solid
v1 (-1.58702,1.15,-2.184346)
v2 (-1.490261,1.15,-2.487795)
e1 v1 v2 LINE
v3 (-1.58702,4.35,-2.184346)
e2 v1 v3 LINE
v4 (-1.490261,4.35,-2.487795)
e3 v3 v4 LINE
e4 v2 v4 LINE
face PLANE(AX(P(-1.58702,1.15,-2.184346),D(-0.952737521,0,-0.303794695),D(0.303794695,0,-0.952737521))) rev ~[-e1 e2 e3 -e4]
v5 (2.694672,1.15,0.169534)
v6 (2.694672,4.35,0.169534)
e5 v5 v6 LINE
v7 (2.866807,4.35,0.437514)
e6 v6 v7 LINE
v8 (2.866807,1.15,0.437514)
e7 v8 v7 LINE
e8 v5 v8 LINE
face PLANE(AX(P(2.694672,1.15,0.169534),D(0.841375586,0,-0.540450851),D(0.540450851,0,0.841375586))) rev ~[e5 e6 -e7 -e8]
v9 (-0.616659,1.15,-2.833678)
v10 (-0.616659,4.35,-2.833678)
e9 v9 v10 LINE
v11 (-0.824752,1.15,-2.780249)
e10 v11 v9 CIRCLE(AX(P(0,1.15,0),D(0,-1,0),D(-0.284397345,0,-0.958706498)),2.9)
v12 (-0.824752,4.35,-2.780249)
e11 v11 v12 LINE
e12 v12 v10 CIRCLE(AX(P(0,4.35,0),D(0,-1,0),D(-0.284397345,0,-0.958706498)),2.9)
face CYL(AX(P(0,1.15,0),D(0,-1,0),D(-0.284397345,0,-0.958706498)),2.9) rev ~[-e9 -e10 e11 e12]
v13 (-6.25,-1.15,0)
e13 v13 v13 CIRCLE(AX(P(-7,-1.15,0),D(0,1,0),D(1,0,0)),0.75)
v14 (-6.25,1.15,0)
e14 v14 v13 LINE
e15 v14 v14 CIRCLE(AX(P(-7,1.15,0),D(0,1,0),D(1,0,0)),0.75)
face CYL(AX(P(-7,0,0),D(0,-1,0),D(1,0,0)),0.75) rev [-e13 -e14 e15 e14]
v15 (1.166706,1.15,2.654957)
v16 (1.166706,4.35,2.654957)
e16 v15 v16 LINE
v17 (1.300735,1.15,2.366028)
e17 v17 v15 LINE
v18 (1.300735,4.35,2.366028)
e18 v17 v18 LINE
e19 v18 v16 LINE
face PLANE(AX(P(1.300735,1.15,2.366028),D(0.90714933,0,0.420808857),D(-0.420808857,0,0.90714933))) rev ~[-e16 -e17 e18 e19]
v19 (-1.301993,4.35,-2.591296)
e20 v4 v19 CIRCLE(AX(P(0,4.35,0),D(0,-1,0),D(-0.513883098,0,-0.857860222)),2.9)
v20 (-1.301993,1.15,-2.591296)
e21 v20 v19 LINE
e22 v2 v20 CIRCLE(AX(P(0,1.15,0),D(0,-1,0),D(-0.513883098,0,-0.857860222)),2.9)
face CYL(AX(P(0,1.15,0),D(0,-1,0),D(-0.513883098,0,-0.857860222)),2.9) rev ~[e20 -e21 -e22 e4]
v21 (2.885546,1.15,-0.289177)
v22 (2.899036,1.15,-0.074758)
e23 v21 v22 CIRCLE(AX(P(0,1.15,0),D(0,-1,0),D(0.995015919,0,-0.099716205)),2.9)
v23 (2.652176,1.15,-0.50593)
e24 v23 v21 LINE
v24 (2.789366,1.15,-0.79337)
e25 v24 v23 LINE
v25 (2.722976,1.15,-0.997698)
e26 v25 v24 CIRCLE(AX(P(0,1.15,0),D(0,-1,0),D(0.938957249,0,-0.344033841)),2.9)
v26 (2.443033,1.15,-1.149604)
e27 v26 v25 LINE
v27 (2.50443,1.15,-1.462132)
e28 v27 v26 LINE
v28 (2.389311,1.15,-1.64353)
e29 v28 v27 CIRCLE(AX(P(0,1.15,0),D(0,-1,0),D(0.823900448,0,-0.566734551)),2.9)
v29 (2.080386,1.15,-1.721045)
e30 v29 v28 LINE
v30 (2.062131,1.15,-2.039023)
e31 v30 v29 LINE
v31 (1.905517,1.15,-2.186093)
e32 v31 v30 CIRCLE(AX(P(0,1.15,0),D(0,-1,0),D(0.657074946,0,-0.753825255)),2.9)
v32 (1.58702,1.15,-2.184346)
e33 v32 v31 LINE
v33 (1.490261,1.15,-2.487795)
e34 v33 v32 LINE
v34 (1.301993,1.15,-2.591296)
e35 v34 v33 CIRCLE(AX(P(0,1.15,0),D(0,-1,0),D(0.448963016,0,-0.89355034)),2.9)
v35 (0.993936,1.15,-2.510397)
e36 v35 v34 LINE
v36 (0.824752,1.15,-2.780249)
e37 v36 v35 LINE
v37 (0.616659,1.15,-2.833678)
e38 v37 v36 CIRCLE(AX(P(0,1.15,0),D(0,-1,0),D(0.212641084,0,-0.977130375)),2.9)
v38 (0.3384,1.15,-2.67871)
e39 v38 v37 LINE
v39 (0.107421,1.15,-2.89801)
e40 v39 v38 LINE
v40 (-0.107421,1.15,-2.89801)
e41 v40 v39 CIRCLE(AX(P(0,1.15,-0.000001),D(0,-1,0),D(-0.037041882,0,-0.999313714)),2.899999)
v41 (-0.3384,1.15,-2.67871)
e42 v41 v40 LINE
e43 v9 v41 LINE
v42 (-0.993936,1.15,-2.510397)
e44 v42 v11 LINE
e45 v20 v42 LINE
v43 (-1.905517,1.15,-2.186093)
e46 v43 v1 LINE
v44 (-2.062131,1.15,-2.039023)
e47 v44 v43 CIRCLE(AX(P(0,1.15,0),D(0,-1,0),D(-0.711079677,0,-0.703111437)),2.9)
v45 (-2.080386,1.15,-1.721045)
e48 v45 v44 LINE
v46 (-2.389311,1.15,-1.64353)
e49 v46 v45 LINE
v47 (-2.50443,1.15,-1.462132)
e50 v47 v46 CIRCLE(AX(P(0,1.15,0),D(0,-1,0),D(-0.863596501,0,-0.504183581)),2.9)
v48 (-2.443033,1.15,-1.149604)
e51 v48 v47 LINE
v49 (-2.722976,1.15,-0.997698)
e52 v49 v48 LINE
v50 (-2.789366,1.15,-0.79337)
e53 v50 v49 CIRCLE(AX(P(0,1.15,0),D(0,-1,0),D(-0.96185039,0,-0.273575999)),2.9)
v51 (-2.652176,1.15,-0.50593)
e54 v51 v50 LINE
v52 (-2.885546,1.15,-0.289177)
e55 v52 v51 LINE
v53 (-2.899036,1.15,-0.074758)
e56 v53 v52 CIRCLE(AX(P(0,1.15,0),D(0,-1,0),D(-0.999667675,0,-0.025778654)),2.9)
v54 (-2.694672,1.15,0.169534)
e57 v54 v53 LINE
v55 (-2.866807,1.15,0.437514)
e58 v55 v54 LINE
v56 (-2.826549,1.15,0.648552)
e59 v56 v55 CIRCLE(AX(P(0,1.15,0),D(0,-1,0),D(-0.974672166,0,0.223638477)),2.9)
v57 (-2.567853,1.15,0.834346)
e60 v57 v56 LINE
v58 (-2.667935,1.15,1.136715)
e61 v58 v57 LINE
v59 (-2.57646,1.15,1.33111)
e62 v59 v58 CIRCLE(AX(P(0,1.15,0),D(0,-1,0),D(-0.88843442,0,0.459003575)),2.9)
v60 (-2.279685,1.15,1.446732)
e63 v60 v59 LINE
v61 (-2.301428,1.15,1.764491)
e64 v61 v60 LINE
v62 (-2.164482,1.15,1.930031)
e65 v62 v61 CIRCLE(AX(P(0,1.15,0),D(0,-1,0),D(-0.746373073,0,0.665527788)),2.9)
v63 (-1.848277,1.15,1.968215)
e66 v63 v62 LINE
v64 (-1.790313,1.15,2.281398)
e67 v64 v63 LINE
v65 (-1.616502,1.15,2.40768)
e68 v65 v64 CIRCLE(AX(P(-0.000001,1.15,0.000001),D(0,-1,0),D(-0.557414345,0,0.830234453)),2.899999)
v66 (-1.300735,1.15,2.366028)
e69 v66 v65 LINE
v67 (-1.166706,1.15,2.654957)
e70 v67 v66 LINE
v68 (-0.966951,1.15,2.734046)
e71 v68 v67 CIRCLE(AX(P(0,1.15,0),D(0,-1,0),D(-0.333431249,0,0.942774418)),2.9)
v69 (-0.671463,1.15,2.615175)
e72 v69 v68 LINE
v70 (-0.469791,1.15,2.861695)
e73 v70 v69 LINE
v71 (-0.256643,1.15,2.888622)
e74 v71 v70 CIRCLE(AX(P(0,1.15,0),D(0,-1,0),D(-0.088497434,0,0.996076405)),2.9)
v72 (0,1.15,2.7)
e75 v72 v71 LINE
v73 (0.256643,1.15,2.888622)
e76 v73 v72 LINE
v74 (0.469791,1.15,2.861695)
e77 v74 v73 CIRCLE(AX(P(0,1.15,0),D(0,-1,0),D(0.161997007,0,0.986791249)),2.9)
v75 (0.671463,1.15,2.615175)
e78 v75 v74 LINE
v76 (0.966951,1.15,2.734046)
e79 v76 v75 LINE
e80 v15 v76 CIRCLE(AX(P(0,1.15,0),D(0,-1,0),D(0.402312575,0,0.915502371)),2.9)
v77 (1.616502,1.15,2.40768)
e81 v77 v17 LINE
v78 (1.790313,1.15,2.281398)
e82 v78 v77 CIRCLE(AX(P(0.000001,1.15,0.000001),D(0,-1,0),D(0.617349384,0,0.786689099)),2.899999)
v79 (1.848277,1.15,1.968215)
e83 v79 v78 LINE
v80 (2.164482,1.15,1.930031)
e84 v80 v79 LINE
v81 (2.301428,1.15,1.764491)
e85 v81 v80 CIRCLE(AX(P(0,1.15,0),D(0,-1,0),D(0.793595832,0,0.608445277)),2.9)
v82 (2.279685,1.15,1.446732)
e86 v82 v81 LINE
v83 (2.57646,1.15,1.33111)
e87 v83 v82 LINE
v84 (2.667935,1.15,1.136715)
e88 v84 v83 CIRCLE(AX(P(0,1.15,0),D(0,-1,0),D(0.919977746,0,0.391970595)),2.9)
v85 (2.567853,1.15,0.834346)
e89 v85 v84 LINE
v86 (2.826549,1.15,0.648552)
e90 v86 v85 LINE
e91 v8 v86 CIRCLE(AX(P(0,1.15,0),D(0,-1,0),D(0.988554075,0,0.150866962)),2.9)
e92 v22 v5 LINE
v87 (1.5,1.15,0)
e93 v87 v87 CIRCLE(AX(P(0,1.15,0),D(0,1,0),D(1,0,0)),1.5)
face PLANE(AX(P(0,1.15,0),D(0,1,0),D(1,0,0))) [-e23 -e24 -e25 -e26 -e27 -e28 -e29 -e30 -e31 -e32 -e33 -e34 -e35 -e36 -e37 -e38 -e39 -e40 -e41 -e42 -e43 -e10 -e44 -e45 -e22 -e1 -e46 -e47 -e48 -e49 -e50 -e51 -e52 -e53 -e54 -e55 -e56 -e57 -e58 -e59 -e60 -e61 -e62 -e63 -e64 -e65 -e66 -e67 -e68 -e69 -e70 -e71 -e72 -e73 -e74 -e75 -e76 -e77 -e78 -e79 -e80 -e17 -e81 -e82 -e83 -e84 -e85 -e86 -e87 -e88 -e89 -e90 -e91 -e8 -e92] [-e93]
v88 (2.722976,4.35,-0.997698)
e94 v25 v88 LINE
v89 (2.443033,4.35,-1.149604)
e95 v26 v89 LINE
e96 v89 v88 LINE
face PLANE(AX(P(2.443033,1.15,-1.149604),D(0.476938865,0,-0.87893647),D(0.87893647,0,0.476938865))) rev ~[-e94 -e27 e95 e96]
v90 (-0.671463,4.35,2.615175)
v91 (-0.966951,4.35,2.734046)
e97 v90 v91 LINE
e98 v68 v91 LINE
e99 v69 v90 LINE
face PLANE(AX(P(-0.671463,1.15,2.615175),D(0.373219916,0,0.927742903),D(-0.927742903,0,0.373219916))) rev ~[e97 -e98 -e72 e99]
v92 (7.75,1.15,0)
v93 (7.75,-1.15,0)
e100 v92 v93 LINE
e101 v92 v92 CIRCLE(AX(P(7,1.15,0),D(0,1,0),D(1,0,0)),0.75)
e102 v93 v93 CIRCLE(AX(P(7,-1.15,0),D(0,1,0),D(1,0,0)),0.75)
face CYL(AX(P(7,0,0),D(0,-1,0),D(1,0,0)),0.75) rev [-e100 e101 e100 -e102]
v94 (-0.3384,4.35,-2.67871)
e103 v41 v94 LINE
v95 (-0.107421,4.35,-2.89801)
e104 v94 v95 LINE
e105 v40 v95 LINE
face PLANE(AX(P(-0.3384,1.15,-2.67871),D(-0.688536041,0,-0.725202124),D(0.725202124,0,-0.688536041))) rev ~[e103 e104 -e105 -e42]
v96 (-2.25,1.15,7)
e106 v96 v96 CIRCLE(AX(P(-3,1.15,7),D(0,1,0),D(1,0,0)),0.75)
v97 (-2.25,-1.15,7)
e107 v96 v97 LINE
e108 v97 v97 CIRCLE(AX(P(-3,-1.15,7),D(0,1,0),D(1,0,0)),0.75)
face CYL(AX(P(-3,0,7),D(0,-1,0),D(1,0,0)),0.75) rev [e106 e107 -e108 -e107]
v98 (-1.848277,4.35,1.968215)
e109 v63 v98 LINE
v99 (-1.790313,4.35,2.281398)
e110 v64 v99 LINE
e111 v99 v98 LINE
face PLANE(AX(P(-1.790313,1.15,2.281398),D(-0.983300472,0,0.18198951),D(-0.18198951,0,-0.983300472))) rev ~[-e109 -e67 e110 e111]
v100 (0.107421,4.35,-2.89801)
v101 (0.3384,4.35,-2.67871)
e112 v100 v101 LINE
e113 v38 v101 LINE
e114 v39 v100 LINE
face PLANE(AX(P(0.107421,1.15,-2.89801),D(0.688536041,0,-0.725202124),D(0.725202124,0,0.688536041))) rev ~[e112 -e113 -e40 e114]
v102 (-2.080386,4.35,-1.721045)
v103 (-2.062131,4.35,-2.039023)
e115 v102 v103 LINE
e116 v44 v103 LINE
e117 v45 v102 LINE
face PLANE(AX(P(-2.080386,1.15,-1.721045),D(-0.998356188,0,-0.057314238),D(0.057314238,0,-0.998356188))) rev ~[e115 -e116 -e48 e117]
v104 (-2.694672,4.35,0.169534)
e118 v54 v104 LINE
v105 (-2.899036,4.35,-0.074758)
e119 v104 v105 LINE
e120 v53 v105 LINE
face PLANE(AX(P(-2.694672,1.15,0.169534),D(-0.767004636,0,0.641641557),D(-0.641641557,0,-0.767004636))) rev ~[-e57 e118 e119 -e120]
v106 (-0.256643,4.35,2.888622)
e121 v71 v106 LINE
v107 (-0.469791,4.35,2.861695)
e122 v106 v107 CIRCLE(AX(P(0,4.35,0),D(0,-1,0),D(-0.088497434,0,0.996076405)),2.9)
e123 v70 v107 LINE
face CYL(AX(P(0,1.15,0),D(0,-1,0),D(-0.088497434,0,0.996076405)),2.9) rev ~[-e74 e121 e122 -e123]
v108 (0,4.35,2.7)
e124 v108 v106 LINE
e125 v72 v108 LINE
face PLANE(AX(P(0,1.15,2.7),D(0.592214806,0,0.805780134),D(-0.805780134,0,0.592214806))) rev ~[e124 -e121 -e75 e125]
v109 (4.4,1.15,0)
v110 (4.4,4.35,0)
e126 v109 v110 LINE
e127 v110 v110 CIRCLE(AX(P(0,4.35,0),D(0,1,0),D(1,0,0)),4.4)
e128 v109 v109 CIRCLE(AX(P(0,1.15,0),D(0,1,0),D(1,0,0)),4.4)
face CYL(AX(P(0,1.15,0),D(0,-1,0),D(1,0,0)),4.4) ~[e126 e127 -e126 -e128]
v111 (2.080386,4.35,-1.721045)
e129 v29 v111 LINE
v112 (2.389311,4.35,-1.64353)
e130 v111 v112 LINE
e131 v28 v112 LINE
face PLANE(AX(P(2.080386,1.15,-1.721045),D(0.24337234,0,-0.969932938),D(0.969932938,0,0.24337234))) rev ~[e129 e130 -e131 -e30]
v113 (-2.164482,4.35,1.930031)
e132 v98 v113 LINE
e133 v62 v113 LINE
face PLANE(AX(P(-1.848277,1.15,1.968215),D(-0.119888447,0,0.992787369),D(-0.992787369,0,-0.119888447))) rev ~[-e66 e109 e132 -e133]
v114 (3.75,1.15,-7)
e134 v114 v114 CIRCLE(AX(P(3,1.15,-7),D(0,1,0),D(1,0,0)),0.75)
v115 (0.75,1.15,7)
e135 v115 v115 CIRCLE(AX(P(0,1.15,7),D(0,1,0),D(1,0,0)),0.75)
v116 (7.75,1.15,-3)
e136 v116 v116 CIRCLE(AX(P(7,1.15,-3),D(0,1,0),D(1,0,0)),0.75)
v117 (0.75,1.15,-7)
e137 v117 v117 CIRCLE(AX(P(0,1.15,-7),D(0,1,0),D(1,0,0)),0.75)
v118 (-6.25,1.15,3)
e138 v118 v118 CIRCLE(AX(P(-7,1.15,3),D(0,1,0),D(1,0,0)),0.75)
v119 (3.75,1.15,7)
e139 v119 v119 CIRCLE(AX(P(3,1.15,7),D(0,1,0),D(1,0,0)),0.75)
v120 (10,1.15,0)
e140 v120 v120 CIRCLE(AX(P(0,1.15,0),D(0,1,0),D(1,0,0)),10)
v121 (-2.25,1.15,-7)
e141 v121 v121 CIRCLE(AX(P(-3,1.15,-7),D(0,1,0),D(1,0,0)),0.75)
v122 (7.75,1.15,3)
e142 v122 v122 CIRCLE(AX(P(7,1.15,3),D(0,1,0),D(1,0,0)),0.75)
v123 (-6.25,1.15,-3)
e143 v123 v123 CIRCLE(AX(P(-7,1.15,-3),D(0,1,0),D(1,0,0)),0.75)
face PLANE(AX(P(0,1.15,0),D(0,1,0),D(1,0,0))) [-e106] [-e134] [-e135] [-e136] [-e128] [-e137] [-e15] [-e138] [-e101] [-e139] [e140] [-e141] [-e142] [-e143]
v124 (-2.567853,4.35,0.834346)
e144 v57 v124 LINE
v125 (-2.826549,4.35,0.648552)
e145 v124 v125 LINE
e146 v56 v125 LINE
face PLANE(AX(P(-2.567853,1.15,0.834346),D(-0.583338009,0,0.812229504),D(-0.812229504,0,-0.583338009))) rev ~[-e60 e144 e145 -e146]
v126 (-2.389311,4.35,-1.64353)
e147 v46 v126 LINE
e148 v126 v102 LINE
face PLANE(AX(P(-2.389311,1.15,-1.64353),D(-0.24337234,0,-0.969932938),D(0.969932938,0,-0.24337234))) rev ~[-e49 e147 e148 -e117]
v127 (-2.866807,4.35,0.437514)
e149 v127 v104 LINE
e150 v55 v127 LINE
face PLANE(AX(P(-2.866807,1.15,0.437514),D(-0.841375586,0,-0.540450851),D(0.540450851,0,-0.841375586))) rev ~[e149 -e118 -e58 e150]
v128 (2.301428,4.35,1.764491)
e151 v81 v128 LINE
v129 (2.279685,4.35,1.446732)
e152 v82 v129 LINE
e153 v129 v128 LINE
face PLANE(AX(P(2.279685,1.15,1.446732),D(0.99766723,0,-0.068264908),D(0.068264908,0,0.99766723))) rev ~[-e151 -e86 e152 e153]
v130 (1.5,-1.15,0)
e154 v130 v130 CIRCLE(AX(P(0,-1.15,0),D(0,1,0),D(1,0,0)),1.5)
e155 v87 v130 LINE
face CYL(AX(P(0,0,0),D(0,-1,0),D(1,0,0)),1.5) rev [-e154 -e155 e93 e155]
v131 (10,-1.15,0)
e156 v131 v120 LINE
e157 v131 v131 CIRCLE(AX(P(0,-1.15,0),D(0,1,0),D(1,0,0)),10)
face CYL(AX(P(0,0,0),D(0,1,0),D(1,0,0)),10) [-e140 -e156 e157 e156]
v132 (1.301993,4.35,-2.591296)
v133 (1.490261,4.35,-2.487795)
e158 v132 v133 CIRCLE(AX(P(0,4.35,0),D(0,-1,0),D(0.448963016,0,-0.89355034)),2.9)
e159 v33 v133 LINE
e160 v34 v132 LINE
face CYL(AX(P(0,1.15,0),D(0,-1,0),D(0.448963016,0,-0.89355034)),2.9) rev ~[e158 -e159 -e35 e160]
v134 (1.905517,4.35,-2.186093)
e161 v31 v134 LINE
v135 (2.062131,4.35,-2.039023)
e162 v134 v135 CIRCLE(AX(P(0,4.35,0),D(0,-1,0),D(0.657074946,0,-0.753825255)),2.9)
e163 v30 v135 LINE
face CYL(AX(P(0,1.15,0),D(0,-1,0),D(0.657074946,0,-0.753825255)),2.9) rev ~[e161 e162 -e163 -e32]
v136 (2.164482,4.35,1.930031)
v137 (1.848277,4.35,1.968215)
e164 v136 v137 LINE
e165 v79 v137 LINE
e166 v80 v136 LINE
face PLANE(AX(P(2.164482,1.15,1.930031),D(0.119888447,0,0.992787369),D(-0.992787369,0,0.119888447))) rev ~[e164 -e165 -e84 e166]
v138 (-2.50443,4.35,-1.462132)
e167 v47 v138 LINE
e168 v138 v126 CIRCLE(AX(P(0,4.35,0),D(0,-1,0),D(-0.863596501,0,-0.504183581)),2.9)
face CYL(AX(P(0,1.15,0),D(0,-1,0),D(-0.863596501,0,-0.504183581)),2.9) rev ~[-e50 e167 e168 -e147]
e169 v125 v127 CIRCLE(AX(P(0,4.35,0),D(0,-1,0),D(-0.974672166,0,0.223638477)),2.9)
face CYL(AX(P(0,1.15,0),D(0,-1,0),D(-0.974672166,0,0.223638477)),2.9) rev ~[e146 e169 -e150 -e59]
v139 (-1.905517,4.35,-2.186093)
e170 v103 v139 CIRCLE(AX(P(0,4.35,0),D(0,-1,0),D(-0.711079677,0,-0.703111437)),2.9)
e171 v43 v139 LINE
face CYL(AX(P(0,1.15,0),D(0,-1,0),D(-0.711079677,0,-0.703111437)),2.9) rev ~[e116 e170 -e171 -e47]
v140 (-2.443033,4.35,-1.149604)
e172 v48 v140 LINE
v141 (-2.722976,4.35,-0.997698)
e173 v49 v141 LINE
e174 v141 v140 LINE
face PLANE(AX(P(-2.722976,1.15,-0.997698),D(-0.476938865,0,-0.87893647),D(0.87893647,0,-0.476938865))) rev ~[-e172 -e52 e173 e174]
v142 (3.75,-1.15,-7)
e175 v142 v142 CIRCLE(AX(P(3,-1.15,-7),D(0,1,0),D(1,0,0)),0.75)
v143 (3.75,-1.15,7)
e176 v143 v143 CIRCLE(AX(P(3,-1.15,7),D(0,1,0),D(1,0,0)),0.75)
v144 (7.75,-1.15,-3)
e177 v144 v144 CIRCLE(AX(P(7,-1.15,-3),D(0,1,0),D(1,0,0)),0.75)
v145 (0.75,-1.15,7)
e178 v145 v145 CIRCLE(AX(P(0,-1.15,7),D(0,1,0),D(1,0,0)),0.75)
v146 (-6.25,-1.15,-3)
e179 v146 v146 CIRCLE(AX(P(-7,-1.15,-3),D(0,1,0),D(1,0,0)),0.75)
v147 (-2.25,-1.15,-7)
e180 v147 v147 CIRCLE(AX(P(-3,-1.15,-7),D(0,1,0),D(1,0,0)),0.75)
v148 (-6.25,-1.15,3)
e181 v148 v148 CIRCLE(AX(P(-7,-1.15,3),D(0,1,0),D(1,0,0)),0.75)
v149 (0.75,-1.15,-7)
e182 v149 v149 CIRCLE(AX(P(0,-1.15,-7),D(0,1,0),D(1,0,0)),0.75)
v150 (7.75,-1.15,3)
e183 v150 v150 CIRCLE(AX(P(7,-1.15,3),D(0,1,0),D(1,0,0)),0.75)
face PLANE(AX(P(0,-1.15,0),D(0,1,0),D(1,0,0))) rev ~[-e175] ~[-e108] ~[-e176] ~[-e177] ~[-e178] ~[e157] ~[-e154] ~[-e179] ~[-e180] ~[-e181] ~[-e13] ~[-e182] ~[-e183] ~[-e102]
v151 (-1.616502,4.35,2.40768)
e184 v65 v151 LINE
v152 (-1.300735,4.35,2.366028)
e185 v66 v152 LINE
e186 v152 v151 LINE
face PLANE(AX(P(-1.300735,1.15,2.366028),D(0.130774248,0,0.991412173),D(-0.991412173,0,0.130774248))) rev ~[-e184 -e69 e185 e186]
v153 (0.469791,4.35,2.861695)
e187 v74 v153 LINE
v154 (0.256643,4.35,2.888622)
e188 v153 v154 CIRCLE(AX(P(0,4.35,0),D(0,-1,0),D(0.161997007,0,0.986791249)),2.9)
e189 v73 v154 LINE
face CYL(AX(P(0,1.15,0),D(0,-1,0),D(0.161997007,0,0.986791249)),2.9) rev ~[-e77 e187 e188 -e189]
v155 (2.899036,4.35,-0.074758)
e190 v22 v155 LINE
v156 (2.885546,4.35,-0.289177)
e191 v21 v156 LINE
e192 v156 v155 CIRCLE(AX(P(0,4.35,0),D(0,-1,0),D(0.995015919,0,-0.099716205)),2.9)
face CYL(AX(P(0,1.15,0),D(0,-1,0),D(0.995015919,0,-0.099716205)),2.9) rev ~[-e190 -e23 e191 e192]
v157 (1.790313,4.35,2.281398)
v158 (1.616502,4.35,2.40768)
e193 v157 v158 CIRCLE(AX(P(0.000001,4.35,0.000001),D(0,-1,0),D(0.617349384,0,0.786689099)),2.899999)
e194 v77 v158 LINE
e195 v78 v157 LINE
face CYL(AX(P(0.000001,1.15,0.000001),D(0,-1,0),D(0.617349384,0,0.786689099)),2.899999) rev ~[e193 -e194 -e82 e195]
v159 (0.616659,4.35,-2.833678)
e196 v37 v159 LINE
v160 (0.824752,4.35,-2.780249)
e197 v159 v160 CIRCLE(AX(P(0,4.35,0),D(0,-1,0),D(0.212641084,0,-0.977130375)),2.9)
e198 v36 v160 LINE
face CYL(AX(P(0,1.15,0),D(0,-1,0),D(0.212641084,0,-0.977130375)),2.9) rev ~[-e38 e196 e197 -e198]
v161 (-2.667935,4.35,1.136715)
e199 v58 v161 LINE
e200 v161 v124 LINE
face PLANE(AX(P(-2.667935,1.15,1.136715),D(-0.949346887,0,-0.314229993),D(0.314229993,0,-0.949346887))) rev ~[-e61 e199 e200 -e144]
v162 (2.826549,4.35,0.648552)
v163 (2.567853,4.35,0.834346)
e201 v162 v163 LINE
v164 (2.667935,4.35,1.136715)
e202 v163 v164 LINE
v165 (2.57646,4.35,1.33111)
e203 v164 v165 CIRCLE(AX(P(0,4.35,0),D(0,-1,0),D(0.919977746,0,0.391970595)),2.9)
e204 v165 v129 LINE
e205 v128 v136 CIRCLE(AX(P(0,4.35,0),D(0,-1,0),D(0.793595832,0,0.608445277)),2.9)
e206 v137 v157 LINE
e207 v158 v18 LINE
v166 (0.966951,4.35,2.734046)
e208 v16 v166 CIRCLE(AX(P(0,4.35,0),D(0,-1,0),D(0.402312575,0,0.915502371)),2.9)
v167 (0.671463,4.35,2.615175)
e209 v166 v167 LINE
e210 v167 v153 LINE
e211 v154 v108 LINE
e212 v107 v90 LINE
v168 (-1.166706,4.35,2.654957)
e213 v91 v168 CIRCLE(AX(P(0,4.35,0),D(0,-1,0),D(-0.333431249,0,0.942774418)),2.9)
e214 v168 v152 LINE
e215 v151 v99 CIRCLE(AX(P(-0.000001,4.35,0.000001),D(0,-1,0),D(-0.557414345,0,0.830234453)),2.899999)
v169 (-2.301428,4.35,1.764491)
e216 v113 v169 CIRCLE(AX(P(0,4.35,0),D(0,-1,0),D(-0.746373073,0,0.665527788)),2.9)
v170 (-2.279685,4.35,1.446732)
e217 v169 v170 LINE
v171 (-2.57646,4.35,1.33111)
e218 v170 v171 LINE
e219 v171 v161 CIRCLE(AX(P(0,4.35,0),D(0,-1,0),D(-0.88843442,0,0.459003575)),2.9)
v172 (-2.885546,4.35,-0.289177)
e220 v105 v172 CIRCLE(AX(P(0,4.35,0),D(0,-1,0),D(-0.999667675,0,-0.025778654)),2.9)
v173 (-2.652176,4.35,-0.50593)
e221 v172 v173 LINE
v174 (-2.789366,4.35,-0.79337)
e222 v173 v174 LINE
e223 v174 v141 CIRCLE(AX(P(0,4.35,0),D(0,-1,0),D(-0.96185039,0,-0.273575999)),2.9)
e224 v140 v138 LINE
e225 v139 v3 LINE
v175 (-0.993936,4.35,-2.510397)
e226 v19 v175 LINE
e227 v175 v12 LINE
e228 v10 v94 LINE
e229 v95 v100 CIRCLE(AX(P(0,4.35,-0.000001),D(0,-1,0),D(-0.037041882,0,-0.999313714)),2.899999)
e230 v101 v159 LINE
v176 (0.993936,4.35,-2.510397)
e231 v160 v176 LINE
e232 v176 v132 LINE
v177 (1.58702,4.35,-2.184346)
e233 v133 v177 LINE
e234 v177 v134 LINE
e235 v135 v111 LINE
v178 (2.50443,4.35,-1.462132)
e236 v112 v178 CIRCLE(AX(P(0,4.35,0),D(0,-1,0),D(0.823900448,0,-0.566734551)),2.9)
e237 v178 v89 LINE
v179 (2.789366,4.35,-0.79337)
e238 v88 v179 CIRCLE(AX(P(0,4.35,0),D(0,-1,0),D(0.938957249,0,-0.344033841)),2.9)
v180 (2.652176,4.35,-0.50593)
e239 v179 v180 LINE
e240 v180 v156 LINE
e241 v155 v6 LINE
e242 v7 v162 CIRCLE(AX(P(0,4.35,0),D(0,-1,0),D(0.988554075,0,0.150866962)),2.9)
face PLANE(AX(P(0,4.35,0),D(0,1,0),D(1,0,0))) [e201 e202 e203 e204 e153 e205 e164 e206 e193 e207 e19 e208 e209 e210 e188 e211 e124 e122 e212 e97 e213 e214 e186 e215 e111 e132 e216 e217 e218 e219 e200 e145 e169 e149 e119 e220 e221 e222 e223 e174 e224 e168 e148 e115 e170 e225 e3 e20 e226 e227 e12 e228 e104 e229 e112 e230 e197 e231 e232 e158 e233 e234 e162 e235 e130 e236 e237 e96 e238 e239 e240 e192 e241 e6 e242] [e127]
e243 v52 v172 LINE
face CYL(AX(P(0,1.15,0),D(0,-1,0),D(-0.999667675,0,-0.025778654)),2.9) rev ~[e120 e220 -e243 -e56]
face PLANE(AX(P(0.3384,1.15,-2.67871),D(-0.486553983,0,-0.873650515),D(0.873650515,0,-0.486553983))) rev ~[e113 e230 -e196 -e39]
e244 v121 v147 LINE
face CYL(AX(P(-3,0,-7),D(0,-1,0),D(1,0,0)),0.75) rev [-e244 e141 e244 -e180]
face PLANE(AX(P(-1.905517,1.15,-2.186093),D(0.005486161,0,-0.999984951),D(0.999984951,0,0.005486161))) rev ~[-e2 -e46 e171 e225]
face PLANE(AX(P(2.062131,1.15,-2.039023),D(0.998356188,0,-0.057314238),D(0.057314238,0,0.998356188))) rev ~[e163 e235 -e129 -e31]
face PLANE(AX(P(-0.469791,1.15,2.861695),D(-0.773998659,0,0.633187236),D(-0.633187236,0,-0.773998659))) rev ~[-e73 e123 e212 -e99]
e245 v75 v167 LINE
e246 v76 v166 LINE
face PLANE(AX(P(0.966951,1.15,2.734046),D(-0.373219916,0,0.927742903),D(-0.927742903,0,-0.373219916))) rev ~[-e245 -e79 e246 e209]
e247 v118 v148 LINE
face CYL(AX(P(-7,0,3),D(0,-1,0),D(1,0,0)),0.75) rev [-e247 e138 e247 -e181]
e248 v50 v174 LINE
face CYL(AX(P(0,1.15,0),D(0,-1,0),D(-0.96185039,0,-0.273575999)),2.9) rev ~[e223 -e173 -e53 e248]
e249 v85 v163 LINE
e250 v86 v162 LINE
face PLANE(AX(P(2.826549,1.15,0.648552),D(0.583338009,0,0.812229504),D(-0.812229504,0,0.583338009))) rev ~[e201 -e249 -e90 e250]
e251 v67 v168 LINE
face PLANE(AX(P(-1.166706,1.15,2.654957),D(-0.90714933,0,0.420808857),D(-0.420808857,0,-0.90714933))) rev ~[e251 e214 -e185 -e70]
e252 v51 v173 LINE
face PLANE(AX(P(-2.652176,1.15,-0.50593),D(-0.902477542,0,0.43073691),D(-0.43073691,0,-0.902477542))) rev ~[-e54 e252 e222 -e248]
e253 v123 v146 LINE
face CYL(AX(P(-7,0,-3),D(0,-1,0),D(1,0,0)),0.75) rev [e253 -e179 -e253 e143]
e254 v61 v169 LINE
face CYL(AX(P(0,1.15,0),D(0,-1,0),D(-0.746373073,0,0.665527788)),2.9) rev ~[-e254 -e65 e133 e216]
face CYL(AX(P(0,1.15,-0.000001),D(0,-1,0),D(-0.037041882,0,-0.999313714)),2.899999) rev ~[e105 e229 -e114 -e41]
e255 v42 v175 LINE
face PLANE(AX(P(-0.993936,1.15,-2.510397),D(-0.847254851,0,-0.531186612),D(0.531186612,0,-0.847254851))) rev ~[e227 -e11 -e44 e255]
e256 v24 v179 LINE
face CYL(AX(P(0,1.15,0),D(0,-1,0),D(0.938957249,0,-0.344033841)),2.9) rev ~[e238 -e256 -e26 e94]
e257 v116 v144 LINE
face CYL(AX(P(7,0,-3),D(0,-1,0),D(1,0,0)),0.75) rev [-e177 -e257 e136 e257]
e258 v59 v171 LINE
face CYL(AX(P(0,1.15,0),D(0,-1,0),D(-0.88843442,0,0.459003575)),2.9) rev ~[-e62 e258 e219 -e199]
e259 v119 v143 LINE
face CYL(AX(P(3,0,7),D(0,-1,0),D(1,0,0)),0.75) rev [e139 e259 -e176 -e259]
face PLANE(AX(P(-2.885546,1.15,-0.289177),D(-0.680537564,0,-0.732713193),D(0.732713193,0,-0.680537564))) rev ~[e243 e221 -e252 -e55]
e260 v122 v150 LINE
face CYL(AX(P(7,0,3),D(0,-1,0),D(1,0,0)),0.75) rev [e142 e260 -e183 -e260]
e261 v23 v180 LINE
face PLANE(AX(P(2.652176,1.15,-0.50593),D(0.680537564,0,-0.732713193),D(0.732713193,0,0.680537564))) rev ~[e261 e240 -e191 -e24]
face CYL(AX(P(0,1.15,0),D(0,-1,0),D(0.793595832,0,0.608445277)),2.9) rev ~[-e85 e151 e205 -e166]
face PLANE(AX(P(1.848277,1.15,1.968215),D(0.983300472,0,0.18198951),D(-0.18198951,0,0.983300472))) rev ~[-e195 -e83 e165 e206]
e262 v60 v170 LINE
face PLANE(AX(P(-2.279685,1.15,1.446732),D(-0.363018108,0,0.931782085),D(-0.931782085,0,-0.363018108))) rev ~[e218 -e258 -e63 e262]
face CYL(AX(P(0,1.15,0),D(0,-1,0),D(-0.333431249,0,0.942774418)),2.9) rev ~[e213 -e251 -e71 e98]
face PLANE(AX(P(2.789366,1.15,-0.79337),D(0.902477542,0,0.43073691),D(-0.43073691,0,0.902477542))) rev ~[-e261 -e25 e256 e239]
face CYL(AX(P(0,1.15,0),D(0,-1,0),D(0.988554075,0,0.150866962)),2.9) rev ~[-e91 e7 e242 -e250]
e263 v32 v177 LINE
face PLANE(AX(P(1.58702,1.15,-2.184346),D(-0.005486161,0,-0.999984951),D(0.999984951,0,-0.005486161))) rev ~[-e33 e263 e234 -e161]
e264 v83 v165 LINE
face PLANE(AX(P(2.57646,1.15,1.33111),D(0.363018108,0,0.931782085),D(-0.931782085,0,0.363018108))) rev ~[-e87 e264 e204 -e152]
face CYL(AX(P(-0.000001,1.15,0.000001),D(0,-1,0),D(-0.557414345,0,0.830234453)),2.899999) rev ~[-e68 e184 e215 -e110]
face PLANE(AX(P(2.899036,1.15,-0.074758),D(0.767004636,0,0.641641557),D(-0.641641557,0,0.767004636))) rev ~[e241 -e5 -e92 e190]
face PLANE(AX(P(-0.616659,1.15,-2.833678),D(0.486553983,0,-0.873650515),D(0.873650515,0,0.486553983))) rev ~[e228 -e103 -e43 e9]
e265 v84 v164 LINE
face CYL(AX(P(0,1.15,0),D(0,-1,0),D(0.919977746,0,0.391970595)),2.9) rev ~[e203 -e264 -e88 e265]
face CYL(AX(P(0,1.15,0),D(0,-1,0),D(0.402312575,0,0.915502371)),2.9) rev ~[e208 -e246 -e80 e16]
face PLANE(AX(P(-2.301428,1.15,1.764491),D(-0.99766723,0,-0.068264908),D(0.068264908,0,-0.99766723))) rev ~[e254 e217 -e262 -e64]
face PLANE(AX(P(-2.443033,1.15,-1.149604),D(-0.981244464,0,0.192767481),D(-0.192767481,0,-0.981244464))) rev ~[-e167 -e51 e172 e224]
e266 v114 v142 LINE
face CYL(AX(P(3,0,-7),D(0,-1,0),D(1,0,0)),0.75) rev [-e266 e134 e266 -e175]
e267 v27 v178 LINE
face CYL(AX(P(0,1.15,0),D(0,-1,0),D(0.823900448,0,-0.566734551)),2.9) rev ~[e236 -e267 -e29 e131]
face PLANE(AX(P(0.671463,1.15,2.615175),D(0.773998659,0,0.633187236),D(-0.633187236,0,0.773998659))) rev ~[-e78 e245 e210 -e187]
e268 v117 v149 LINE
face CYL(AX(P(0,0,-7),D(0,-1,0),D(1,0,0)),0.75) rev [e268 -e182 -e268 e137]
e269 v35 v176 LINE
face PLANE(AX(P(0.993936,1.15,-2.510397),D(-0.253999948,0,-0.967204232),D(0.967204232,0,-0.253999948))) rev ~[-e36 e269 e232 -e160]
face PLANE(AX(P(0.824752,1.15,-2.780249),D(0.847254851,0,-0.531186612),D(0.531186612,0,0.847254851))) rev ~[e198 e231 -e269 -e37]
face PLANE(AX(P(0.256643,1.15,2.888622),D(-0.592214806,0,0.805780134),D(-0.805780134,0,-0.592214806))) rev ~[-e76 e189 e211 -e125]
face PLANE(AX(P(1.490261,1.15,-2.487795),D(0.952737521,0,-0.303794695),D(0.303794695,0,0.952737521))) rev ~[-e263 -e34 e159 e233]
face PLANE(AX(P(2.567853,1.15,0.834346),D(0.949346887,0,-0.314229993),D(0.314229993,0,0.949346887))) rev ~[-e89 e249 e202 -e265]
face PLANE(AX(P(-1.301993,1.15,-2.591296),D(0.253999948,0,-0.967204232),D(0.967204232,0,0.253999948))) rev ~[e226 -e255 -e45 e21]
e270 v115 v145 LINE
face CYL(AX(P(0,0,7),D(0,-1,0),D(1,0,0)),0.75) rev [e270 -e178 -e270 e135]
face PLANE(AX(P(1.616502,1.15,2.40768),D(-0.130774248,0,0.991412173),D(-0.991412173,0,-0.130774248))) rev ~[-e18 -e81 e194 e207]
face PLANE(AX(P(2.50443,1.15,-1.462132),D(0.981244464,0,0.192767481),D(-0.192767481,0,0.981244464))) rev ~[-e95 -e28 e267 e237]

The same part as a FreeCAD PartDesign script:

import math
import FreeCAD as App
import Part
import Sketcher
from FreeCAD import Vector
Q = App.Units.Quantity

doc = App.newDocument("Part")
body = doc.addObject("PartDesign::Body", "Body")

# Sketch on XZ plane
sketch1 = body.newObject("Sketcher::SketchObject", "Sketch")
sketch1.AttachmentSupport = (doc.getObject("XZ_Plane"), [""])
sketch1.MapMode = "FlatFace"
sketch1.addGeometry([
    Part.Circle(Vector(0, 0, 0), Vector(0, 0, 1), 6),
    Part.Circle(Vector(0, 0, 0), Vector(0, 0, 1), 1.5),
], False)
sketch1.addConstraint([
    Sketcher.Constraint("Coincident", 0, 3, -1, 1),
    Sketcher.Constraint("Coincident", 1, 3, -1, 1),
    Sketcher.Constraint("Diameter", 0, Q("12 mm")),
    Sketcher.Constraint("Diameter", 1, Q("3 mm")),
])
pad1 = body.newObject("PartDesign::Pad", "Pad")
pad1.Profile = sketch1
pad1.Length = 2.3
pad1.Midplane = True

# Sketch on XZ plane
sketch2 = body.newObject("Sketcher::SketchObject", "Sketch001")
sketch2.AttachmentSupport = (doc.getObject("XZ_Plane"), [""])
sketch2.MapMode = "FlatFace"
sketch2.AttachmentOffset = App.Placement(Vector(0, 0, -1.15), App.Rotation())
sketch2.addGeometry([
    Part.Circle(Vector(0, 0, 0), Vector(0, 0, 1), 4.4),  # 0
    Part.ArcOfCircle(Part.Circle(Vector(0, 0, 0), Vector(0, 0, 1), 2.9), math.radians(-92.12), math.radians(-87.88)),  # 1
    Part.LineSegment(Vector(0.11, -2.9, 0), Vector(0.34, -2.68, 0)),  # 2
    Part.LineSegment(Vector(0.34, -2.68, 0), Vector(0.62, -2.83, 0)),  # 3
    Part.ArcOfCircle(Part.Circle(Vector(0, 0, 0), Vector(0, 0, 1), 2.9), math.radians(-77.72), math.radians(-73.48)),  # 4
    Part.LineSegment(Vector(0.82, -2.78, 0), Vector(0.99, -2.51, 0)),  # 5
    Part.LineSegment(Vector(0.99, -2.51, 0), Vector(1.3, -2.59, 0)),  # 6
    Part.ArcOfCircle(Part.Circle(Vector(0, 0, 0), Vector(0, 0, 1), 2.9), math.radians(-63.32), math.radians(-59.08)),  # 7
    Part.LineSegment(Vector(1.49, -2.49, 0), Vector(1.59, -2.18, 0)),  # 8
    Part.LineSegment(Vector(1.59, -2.18, 0), Vector(1.91, -2.19, 0)),  # 9
    Part.ArcOfCircle(Part.Circle(Vector(0, 0, 0), Vector(0, 0, 1), 2.9), math.radians(-48.92), math.radians(-44.68)),  # 10
    Part.LineSegment(Vector(2.06, -2.04, 0), Vector(2.08, -1.72, 0)),  # 11
    Part.LineSegment(Vector(2.08, -1.72, 0), Vector(2.39, -1.64, 0)),  # 12
    Part.ArcOfCircle(Part.Circle(Vector(0, 0, 0), Vector(0, 0, 1), 2.9), math.radians(-34.52), math.radians(-30.28)),  # 13
    Part.LineSegment(Vector(2.5, -1.46, 0), Vector(2.44, -1.15, 0)),  # 14
    Part.LineSegment(Vector(2.44, -1.15, 0), Vector(2.72, -1, 0)),  # 15
    Part.ArcOfCircle(Part.Circle(Vector(0, 0, 0), Vector(0, 0, 1), 2.9), math.radians(-20.12), math.radians(-15.88)),  # 16
    Part.LineSegment(Vector(2.79, -0.79, 0), Vector(2.65, -0.51, 0)),  # 17
    Part.LineSegment(Vector(2.65, -0.51, 0), Vector(2.89, -0.29, 0)),  # 18
    Part.ArcOfCircle(Part.Circle(Vector(0, 0, 0), Vector(0, 0, 1), 2.9), math.radians(-5.72), math.radians(-1.48)),  # 19
    Part.LineSegment(Vector(2.9, -0.07, 0), Vector(2.69, 0.17, 0)),  # 20
    Part.LineSegment(Vector(2.69, 0.17, 0), Vector(2.87, 0.44, 0)),  # 21
    Part.ArcOfCircle(Part.Circle(Vector(0, 0, 0), Vector(0, 0, 1), 2.9), math.radians(8.68), math.radians(12.92)),  # 22
    Part.LineSegment(Vector(2.83, 0.65, 0), Vector(2.57, 0.83, 0)),  # 23
    Part.LineSegment(Vector(2.57, 0.83, 0), Vector(2.67, 1.14, 0)),  # 24
    Part.ArcOfCircle(Part.Circle(Vector(0, 0, 0), Vector(0, 0, 1), 2.9), math.radians(23.08), math.radians(27.32)),  # 25
    Part.LineSegment(Vector(2.58, 1.33, 0), Vector(2.28, 1.45, 0)),  # 26
    Part.LineSegment(Vector(2.28, 1.45, 0), Vector(2.3, 1.76, 0)),  # 27
    Part.ArcOfCircle(Part.Circle(Vector(0, 0, 0), Vector(0, 0, 1), 2.9), math.radians(37.48), math.radians(41.72)),  # 28
    Part.LineSegment(Vector(2.16, 1.93, 0), Vector(1.85, 1.97, 0)),  # 29
    Part.LineSegment(Vector(1.85, 1.97, 0), Vector(1.79, 2.28, 0)),  # 30
    Part.ArcOfCircle(Part.Circle(Vector(0, 0, 0), Vector(0, 0, 1), 2.9), math.radians(51.88), math.radians(56.12)),  # 31
    Part.LineSegment(Vector(1.62, 2.41, 0), Vector(1.3, 2.37, 0)),  # 32
    Part.LineSegment(Vector(1.3, 2.37, 0), Vector(1.17, 2.65, 0)),  # 33
    Part.ArcOfCircle(Part.Circle(Vector(0, 0, 0), Vector(0, 0, 1), 2.9), math.radians(66.28), math.radians(70.52)),  # 34
    Part.LineSegment(Vector(0.97, 2.73, 0), Vector(0.67, 2.62, 0)),  # 35
    Part.LineSegment(Vector(0.67, 2.62, 0), Vector(0.47, 2.86, 0)),  # 36
    Part.ArcOfCircle(Part.Circle(Vector(0, 0, 0), Vector(0, 0, 1), 2.9), math.radians(80.68), math.radians(84.92)),  # 37
    Part.LineSegment(Vector(0.26, 2.89, 0), Vector(0, 2.7, 0)),  # 38
    Part.LineSegment(Vector(0, 2.7, 0), Vector(-0.26, 2.89, 0)),  # 39
    Part.ArcOfCircle(Part.Circle(Vector(0, 0, 0), Vector(0, 0, 1), 2.9), math.radians(95.08), math.radians(99.32)),  # 40
    Part.LineSegment(Vector(-0.47, 2.86, 0), Vector(-0.67, 2.62, 0)),  # 41
    Part.LineSegment(Vector(-0.67, 2.62, 0), Vector(-0.97, 2.73, 0)),  # 42
    Part.ArcOfCircle(Part.Circle(Vector(0, 0, 0), Vector(0, 0, 1), 2.9), math.radians(109.48), math.radians(113.72)),  # 43
    Part.LineSegment(Vector(-1.17, 2.65, 0), Vector(-1.3, 2.37, 0)),  # 44
    Part.LineSegment(Vector(-1.3, 2.37, 0), Vector(-1.62, 2.41, 0)),  # 45
    Part.ArcOfCircle(Part.Circle(Vector(0, 0, 0), Vector(0, 0, 1), 2.9), math.radians(123.88), math.radians(128.12)),  # 46
    Part.LineSegment(Vector(-1.79, 2.28, 0), Vector(-1.85, 1.97, 0)),  # 47
    Part.LineSegment(Vector(-1.85, 1.97, 0), Vector(-2.16, 1.93, 0)),  # 48
    Part.ArcOfCircle(Part.Circle(Vector(0, 0, 0), Vector(0, 0, 1), 2.9), math.radians(138.28), math.radians(142.52)),  # 49
    Part.LineSegment(Vector(-2.3, 1.76, 0), Vector(-2.28, 1.45, 0)),  # 50
    Part.LineSegment(Vector(-2.28, 1.45, 0), Vector(-2.58, 1.33, 0)),  # 51
    Part.ArcOfCircle(Part.Circle(Vector(0, 0, 0), Vector(0, 0, 1), 2.9), math.radians(152.68), math.radians(156.92)),  # 52
    Part.LineSegment(Vector(-2.67, 1.14, 0), Vector(-2.57, 0.83, 0)),  # 53
    Part.LineSegment(Vector(-2.57, 0.83, 0), Vector(-2.83, 0.65, 0)),  # 54
    Part.ArcOfCircle(Part.Circle(Vector(0, 0, 0), Vector(0, 0, 1), 2.9), math.radians(167.08), math.radians(171.32)),  # 55
    Part.LineSegment(Vector(-2.87, 0.44, 0), Vector(-2.69, 0.17, 0)),  # 56
    Part.LineSegment(Vector(-2.69, 0.17, 0), Vector(-2.9, -0.07, 0)),  # 57
    Part.ArcOfCircle(Part.Circle(Vector(0, 0, 0), Vector(0, 0, 1), 2.9), math.radians(-178.52), math.radians(-174.28)),  # 58
    Part.LineSegment(Vector(-2.89, -0.29, 0), Vector(-2.65, -0.51, 0)),  # 59
    Part.LineSegment(Vector(-2.65, -0.51, 0), Vector(-2.79, -0.79, 0)),  # 60
    Part.ArcOfCircle(Part.Circle(Vector(0, 0, 0), Vector(0, 0, 1), 2.9), math.radians(-164.12), math.radians(-159.88)),  # 61
    Part.LineSegment(Vector(-2.72, -1, 0), Vector(-2.44, -1.15, 0)),  # 62
    Part.LineSegment(Vector(-2.44, -1.15, 0), Vector(-2.5, -1.46, 0)),  # 63
    Part.ArcOfCircle(Part.Circle(Vector(0, 0, 0), Vector(0, 0, 1), 2.9), math.radians(-149.72), math.radians(-145.48)),  # 64
    Part.LineSegment(Vector(-2.39, -1.64, 0), Vector(-2.08, -1.72, 0)),  # 65
    Part.LineSegment(Vector(-2.08, -1.72, 0), Vector(-2.06, -2.04, 0)),  # 66
    Part.ArcOfCircle(Part.Circle(Vector(0, 0, 0), Vector(0, 0, 1), 2.9), math.radians(-135.32), math.radians(-131.08)),  # 67
    Part.LineSegment(Vector(-1.91, -2.19, 0), Vector(-1.59, -2.18, 0)),  # 68
    Part.LineSegment(Vector(-1.59, -2.18, 0), Vector(-1.49, -2.49, 0)),  # 69
    Part.ArcOfCircle(Part.Circle(Vector(0, 0, 0), Vector(0, 0, 1), 2.9), math.radians(-120.92), math.radians(-116.68)),  # 70
    Part.LineSegment(Vector(-1.3, -2.59, 0), Vector(-0.99, -2.51, 0)),  # 71
    Part.LineSegment(Vector(-0.99, -2.51, 0), Vector(-0.82, -2.78, 0)),  # 72
    Part.ArcOfCircle(Part.Circle(Vector(0, 0, 0), Vector(0, 0, 1), 2.9), math.radians(-106.52), math.radians(-102.28)),  # 73
    Part.LineSegment(Vector(-0.62, -2.83, 0), Vector(-0.34, -2.68, 0)),  # 74
    Part.LineSegment(Vector(-0.34, -2.68, 0), Vector(-0.11, -2.9, 0)),  # 75
], False)
sketch2.addConstraint([
    Sketcher.Constraint("Coincident", 1, 2, 2, 1),
    Sketcher.Constraint("Coincident", 2, 2, 3, 1),
    Sketcher.Constraint("Coincident", 3, 2, 4, 1),
    Sketcher.Constraint("Coincident", 4, 2, 5, 1),
    Sketcher.Constraint("Coincident", 5, 2, 6, 1),
    Sketcher.Constraint("Coincident", 6, 2, 7, 1),
    Sketcher.Constraint("Coincident", 7, 2, 8, 1),
    Sketcher.Constraint("Coincident", 8, 2, 9, 1),
    Sketcher.Constraint("Coincident", 9, 2, 10, 1),
    Sketcher.Constraint("Coincident", 10, 2, 11, 1),
    Sketcher.Constraint("Coincident", 11, 2, 12, 1),
    Sketcher.Constraint("Coincident", 12, 2, 13, 1),
    Sketcher.Constraint("Coincident", 13, 2, 14, 1),
    Sketcher.Constraint("Coincident", 14, 2, 15, 1),
    Sketcher.Constraint("Coincident", 15, 2, 16, 1),
    Sketcher.Constraint("Coincident", 16, 2, 17, 1),
    Sketcher.Constraint("Coincident", 17, 2, 18, 1),
    Sketcher.Constraint("Coincident", 18, 2, 19, 1),
    Sketcher.Constraint("Coincident", 19, 2, 20, 1),
    Sketcher.Constraint("Coincident", 20, 2, 21, 1),
    Sketcher.Constraint("Coincident", 21, 2, 22, 1),
    Sketcher.Constraint("Coincident", 22, 2, 23, 1),
    Sketcher.Constraint("Coincident", 23, 2, 24, 1),
    Sketcher.Constraint("Coincident", 24, 2, 25, 1),
    Sketcher.Constraint("Coincident", 25, 2, 26, 1),
    Sketcher.Constraint("Coincident", 26, 2, 27, 1),
    Sketcher.Constraint("Coincident", 27, 2, 28, 1),
    Sketcher.Constraint("Coincident", 28, 2, 29, 1),
    Sketcher.Constraint("Coincident", 29, 2, 30, 1),
    Sketcher.Constraint("Coincident", 30, 2, 31, 1),
    Sketcher.Constraint("Coincident", 31, 2, 32, 1),
    Sketcher.Constraint("Coincident", 32, 2, 33, 1),
    Sketcher.Constraint("Coincident", 33, 2, 34, 1),
    Sketcher.Constraint("Coincident", 34, 2, 35, 1),
    Sketcher.Constraint("Coincident", 35, 2, 36, 1),
    Sketcher.Constraint("Coincident", 36, 2, 37, 1),
    Sketcher.Constraint("Coincident", 37, 2, 38, 1),
    Sketcher.Constraint("Coincident", 38, 2, 39, 1),
    Sketcher.Constraint("Coincident", 39, 2, 40, 1),
    Sketcher.Constraint("Coincident", 40, 2, 41, 1),
    Sketcher.Constraint("Coincident", 41, 2, 42, 1),
    Sketcher.Constraint("Coincident", 42, 2, 43, 1),
    Sketcher.Constraint("Coincident", 43, 2, 44, 1),
    Sketcher.Constraint("Coincident", 44, 2, 45, 1),
    Sketcher.Constraint("Coincident", 45, 2, 46, 1),
    Sketcher.Constraint("Coincident", 46, 2, 47, 1),
    Sketcher.Constraint("Coincident", 47, 2, 48, 1),
    Sketcher.Constraint("Coincident", 48, 2, 49, 1),
    Sketcher.Constraint("Coincident", 49, 2, 50, 1),
    Sketcher.Constraint("Coincident", 50, 2, 51, 1),
    Sketcher.Constraint("Coincident", 51, 2, 52, 1),
    Sketcher.Constraint("Coincident", 52, 2, 53, 1),
    Sketcher.Constraint("Coincident", 53, 2, 54, 1),
    Sketcher.Constraint("Coincident", 54, 2, 55, 1),
    Sketcher.Constraint("Coincident", 55, 2, 56, 1),
    Sketcher.Constraint("Coincident", 56, 2, 57, 1),
    Sketcher.Constraint("Coincident", 57, 2, 58, 1),
    Sketcher.Constraint("Coincident", 58, 2, 59, 1),
    Sketcher.Constraint("Coincident", 59, 2, 60, 1),
    Sketcher.Constraint("Coincident", 60, 2, 61, 1),
    Sketcher.Constraint("Coincident", 61, 2, 62, 1),
    Sketcher.Constraint("Coincident", 62, 2, 63, 1),
    Sketcher.Constraint("Coincident", 63, 2, 64, 1),
    Sketcher.Constraint("Coincident", 64, 2, 65, 1),
    Sketcher.Constraint("Coincident", 65, 2, 66, 1),
    Sketcher.Constraint("Coincident", 66, 2, 67, 1),
    Sketcher.Constraint("Coincident", 67, 2, 68, 1),
    Sketcher.Constraint("Coincident", 68, 2, 69, 1),
    Sketcher.Constraint("Coincident", 69, 2, 70, 1),
    Sketcher.Constraint("Coincident", 70, 2, 71, 1),
    Sketcher.Constraint("Coincident", 71, 2, 72, 1),
    Sketcher.Constraint("Coincident", 72, 2, 73, 1),
    Sketcher.Constraint("Coincident", 73, 2, 74, 1),
    Sketcher.Constraint("Coincident", 74, 2, 75, 1),
    Sketcher.Constraint("Coincident", 75, 2, 1, 1),
    Sketcher.Constraint("Coincident", 0, 3, -1, 1),
    Sketcher.Constraint("Coincident", 1, 3, -1, 1),
    Sketcher.Constraint("Coincident", 4, 3, -1, 1),
    Sketcher.Constraint("Coincident", 7, 3, -1, 1),
    Sketcher.Constraint("Coincident", 10, 3, -1, 1),
    Sketcher.Constraint("Coincident", 13, 3, -1, 1),
    Sketcher.Constraint("Coincident", 16, 3, -1, 1),
    Sketcher.Constraint("Coincident", 19, 3, -1, 1),
    Sketcher.Constraint("Coincident", 22, 3, -1, 1),
    Sketcher.Constraint("Coincident", 25, 3, -1, 1),
    Sketcher.Constraint("Coincident", 28, 3, -1, 1),
    Sketcher.Constraint("Coincident", 31, 3, -1, 1),
    Sketcher.Constraint("Coincident", 34, 3, -1, 1),
    Sketcher.Constraint("Coincident", 37, 3, -1, 1),
    Sketcher.Constraint("Coincident", 40, 3, -1, 1),
    Sketcher.Constraint("Coincident", 43, 3, -1, 1),
    Sketcher.Constraint("Coincident", 46, 3, -1, 1),
    Sketcher.Constraint("Coincident", 49, 3, -1, 1),
    Sketcher.Constraint("Coincident", 52, 3, -1, 1),
    Sketcher.Constraint("Coincident", 55, 3, -1, 1),
    Sketcher.Constraint("Coincident", 58, 3, -1, 1),
    Sketcher.Constraint("Coincident", 61, 3, -1, 1),
    Sketcher.Constraint("Coincident", 64, 3, -1, 1),
    Sketcher.Constraint("Coincident", 67, 3, -1, 1),
    Sketcher.Constraint("Coincident", 70, 3, -1, 1),
    Sketcher.Constraint("Coincident", 73, 3, -1, 1),
    Sketcher.Constraint("Equal", 1, 4),
    Sketcher.Constraint("Equal", 4, 7),
    Sketcher.Constraint("Equal", 7, 10),
    Sketcher.Constraint("Equal", 10, 13),
    Sketcher.Constraint("Equal", 13, 16),
    Sketcher.Constraint("Equal", 16, 19),
    Sketcher.Constraint("Equal", 19, 22),
    Sketcher.Constraint("Equal", 22, 25),
    Sketcher.Constraint("Equal", 25, 28),
    Sketcher.Constraint("Equal", 28, 31),
    Sketcher.Constraint("Equal", 31, 34),
    Sketcher.Constraint("Equal", 34, 37),
    Sketcher.Constraint("Equal", 37, 40),
    Sketcher.Constraint("Equal", 40, 43),
    Sketcher.Constraint("Equal", 43, 46),
    Sketcher.Constraint("Equal", 46, 49),
    Sketcher.Constraint("Equal", 49, 52),
    Sketcher.Constraint("Equal", 52, 55),
    Sketcher.Constraint("Equal", 55, 58),
    Sketcher.Constraint("Equal", 58, 61),
    Sketcher.Constraint("Equal", 61, 64),
    Sketcher.Constraint("Equal", 64, 67),
    Sketcher.Constraint("Equal", 67, 70),
    Sketcher.Constraint("Equal", 70, 73),
    Sketcher.Constraint("Symmetric", 35, 2, 41, 2, -2),
    Sketcher.Constraint("Symmetric", 32, 2, 44, 2, -2),
    Sketcher.Constraint("Symmetric", 29, 2, 47, 2, -2),
    Sketcher.Constraint("Symmetric", 26, 2, 50, 2, -2),
    Sketcher.Constraint("Symmetric", 23, 2, 53, 2, -2),
    Sketcher.Constraint("Symmetric", 20, 2, 56, 2, -2),
    Sketcher.Constraint("Symmetric", 17, 2, 59, 2, -2),
    Sketcher.Constraint("Symmetric", 14, 2, 62, 2, -2),
    Sketcher.Constraint("Symmetric", 11, 2, 65, 2, -2),
    Sketcher.Constraint("Symmetric", 8, 2, 68, 2, -2),
    Sketcher.Constraint("Symmetric", 5, 2, 71, 2, -2),
    Sketcher.Constraint("Symmetric", 2, 2, 74, 2, -2),
    Sketcher.Constraint("PointOnObject", 38, 2, -2),
    Sketcher.Constraint("Horizontal", 37, 2, 39, 2),
    Sketcher.Constraint("Horizontal", 36, 2, 40, 2),
    Sketcher.Constraint("Horizontal", 34, 2, 42, 2),
    Sketcher.Constraint("Horizontal", 33, 2, 43, 2),
    Sketcher.Constraint("Horizontal", 31, 2, 45, 2),
    Sketcher.Constraint("Horizontal", 30, 2, 46, 2),
    Sketcher.Constraint("Horizontal", 28, 2, 48, 2),
    Sketcher.Constraint("Horizontal", 27, 2, 49, 2),
    Sketcher.Constraint("Horizontal", 25, 2, 51, 2),
    Sketcher.Constraint("Horizontal", 24, 2, 52, 2),
    Sketcher.Constraint("Horizontal", 22, 2, 54, 2),
    Sketcher.Constraint("Horizontal", 21, 2, 55, 2),
    Sketcher.Constraint("Horizontal", 19, 2, 57, 2),
    Sketcher.Constraint("Horizontal", 18, 2, 58, 2),
    Sketcher.Constraint("Horizontal", 16, 2, 60, 2),
    Sketcher.Constraint("Horizontal", 15, 2, 61, 2),
    Sketcher.Constraint("Horizontal", 13, 2, 63, 2),
    Sketcher.Constraint("Horizontal", 12, 2, 64, 2),
    Sketcher.Constraint("Horizontal", 10, 2, 66, 2),
    Sketcher.Constraint("Horizontal", 9, 2, 67, 2),
    Sketcher.Constraint("Horizontal", 7, 2, 69, 2),
    Sketcher.Constraint("Horizontal", 6, 2, 70, 2),
    Sketcher.Constraint("Horizontal", 4, 2, 72, 2),
    Sketcher.Constraint("Horizontal", 3, 2, 73, 2),
    Sketcher.Constraint("Horizontal", 1, 2, 75, 2),
    Sketcher.Constraint("Equal", 2, 3),
    Sketcher.Constraint("Equal", 3, 5),
    Sketcher.Constraint("Equal", 5, 6),
    Sketcher.Constraint("Equal", 6, 8),
    Sketcher.Constraint("Equal", 8, 9),
    Sketcher.Constraint("Equal", 9, 11),
    Sketcher.Constraint("Equal", 11, 12),
    Sketcher.Constraint("Equal", 12, 14),
    Sketcher.Constraint("Equal", 14, 15),
    Sketcher.Constraint("Equal", 15, 17),
    Sketcher.Constraint("Equal", 17, 18),
    Sketcher.Constraint("Equal", 18, 20),
    Sketcher.Constraint("Equal", 20, 21),
    Sketcher.Constraint("Equal", 21, 23),
    Sketcher.Constraint("Equal", 23, 24),
    Sketcher.Constraint("Equal", 24, 26),
    Sketcher.Constraint("Equal", 26, 27),
    Sketcher.Constraint("Equal", 27, 29),
    Sketcher.Constraint("Equal", 29, 30),
    Sketcher.Constraint("Equal", 30, 32),
    Sketcher.Constraint("Equal", 32, 33),
    Sketcher.Constraint("Equal", 33, 35),
    Sketcher.Constraint("Equal", 35, 36),
    Sketcher.Constraint("Equal", 36, 38),
    Sketcher.Constraint("Diameter", 0, Q("8.8 mm")),
    Sketcher.Constraint("Radius", 1, Q("2.899999 mm")),
    Sketcher.Constraint("DistanceY", -1, 1, 38, 2, Q("2.7 mm")),
    Sketcher.Constraint("Distance", 2, Q("0.318502 mm")),
    Sketcher.Constraint("DistanceX", -1, 1, 2, 2, Q("0.3384 mm")),
    Sketcher.Constraint("DistanceY", 15, 2, -1, 1, Q("0.997698 mm")),
    Sketcher.Constraint("DistanceY", -1, 1, 30, 2, Q("2.281398 mm")),
    Sketcher.Constraint("DistanceX", -1, 1, 31, 2, Q("1.616502 mm")),
    Sketcher.Constraint("DistanceX", -1, 1, 1, 2, Q("0.107421 mm")),
    Sketcher.Constraint("DistanceY", 4, 2, -1, 1, Q("2.780249 mm")),
    Sketcher.Constraint("DistanceX", -1, 1, 7, 2, Q("1.490261 mm")),
    Sketcher.Constraint("DistanceX", -1, 1, 8, 2, Q("1.58702 mm")),
    Sketcher.Constraint("DistanceX", -1, 1, 10, 2, Q("2.062131 mm")),
    Sketcher.Constraint("DistanceX", -1, 1, 12, 2, Q("2.389311 mm")),
    Sketcher.Constraint("DistanceX", -1, 1, 13, 2, Q("2.50443 mm")),
    Sketcher.Constraint("DistanceY", 16, 2, -1, 1, Q("0.79337 mm")),
    Sketcher.Constraint("DistanceY", 17, 2, -1, 1, Q("0.50593 mm")),
    Sketcher.Constraint("DistanceY", 19, 2, -1, 1, Q("0.074758 mm")),
    Sketcher.Constraint("DistanceX", -1, 1, 22, 2, Q("2.826549 mm")),
    Sketcher.Constraint("DistanceX", -1, 1, 25, 2, Q("2.57646 mm")),
    Sketcher.Constraint("DistanceY", -1, 1, 27, 2, Q("1.764491 mm")),
    Sketcher.Constraint("DistanceX", -1, 1, 28, 2, Q("2.164482 mm")),
    Sketcher.Constraint("DistanceY", -1, 1, 32, 2, Q("2.366028 mm")),
    Sketcher.Constraint("DistanceX", -1, 1, 34, 2, Q("0.966951 mm")),
    Sketcher.Constraint("DistanceX", -1, 1, 36, 2, Q("0.469791 mm")),
    Sketcher.Constraint("DistanceX", -1, 1, 5, 2, Q("0.993936 mm")),
    Sketcher.Constraint("DistanceX", -1, 1, 20, 2, Q("2.694672 mm")),
    Sketcher.Constraint("DistanceX", -1, 1, 23, 2, Q("2.567853 mm")),
])
pad2 = body.newObject("PartDesign::Pad", "Pad001")
pad2.Profile = sketch2
pad2.Length = 3.2
pad2.Reversed = True

# Sketch on XZ plane
sketch3 = body.newObject("Sketcher::SketchObject", "Sketch002")
sketch3.AttachmentSupport = (doc.getObject("XZ_Plane"), [""])
sketch3.MapMode = "FlatFace"
sketch3.addGeometry([
    Part.Circle(Vector(0, 0, 0), Vector(0, 0, 1), 10),  # 0
    Part.Circle(Vector(-3, 7, 0), Vector(0, 0, 1), 0.8),  # 1
    Part.Circle(Vector(-7, 3, 0), Vector(0, 0, 1), 0.8),  # 2
    Part.Circle(Vector(0, 7, 0), Vector(0, 0, 1), 0.8),  # 3
    Part.Circle(Vector(3, 7, 0), Vector(0, 0, 1), 0.8),  # 4
    Part.Circle(Vector(7, 3, 0), Vector(0, 0, 1), 0.8),  # 5
    Part.Circle(Vector(-7, 0, 0), Vector(0, 0, 1), 0.8),  # 6
    Part.Circle(Vector(-7, -3, 0), Vector(0, 0, 1), 0.8),  # 7
    Part.Circle(Vector(-3, -7, 0), Vector(0, 0, 1), 0.8),  # 8
    Part.Circle(Vector(0, 0, 0), Vector(0, 0, 1), 1.5),  # 9
    Part.Circle(Vector(7, 0, 0), Vector(0, 0, 1), 0.8),  # 10
    Part.Circle(Vector(7, -3, 0), Vector(0, 0, 1), 0.8),  # 11
    Part.Circle(Vector(0, -7, 0), Vector(0, 0, 1), 0.8),  # 12
    Part.Circle(Vector(3, -7, 0), Vector(0, 0, 1), 0.8),  # 13
], False)
sketch3.addConstraint([
    Sketcher.Constraint("Coincident", 0, 3, -1, 1),
    Sketcher.Constraint("Coincident", 9, 3, -1, 1),
    Sketcher.Constraint("Equal", 1, 2),
    Sketcher.Constraint("Equal", 2, 3),
    Sketcher.Constraint("Equal", 3, 4),
    Sketcher.Constraint("Equal", 4, 5),
    Sketcher.Constraint("Equal", 5, 6),
    Sketcher.Constraint("Equal", 6, 7),
    Sketcher.Constraint("Equal", 7, 8),
    Sketcher.Constraint("Equal", 8, 10),
    Sketcher.Constraint("Equal", 10, 11),
    Sketcher.Constraint("Equal", 11, 12),
    Sketcher.Constraint("Equal", 12, 13),
    Sketcher.Constraint("Symmetric", 5, 3, 7, 3, -1, 1),
    Sketcher.Constraint("Symmetric", 4, 3, 8, 3, -1, 1),
    Sketcher.Constraint("Symmetric", 6, 3, 10, 3, -1, 1),
    Sketcher.Constraint("Symmetric", 2, 3, 11, 3, -1, 1),
    Sketcher.Constraint("Symmetric", 3, 3, 12, 3, -1, 1),
    Sketcher.Constraint("Symmetric", 1, 3, 13, 3, -1, 1),
    Sketcher.Constraint("Symmetric", 1, 3, 4, 3, -2),
    Sketcher.Constraint("Symmetric", 2, 3, 5, 3, -2),
    Sketcher.Constraint("PointOnObject", 3, 3, -2),
    Sketcher.Constraint("PointOnObject", 6, 3, -1),
    Sketcher.Constraint("Horizontal", 1, 3, 3, 3),
    Sketcher.Constraint("Vertical", 2, 3, 6, 3),
    Sketcher.Constraint("Diameter", 0, Q("20 mm")),
    Sketcher.Constraint("Diameter", 9, Q("3 mm")),
    Sketcher.Constraint("Diameter", 1, Q("1.5 mm")),
    Sketcher.Constraint("DistanceX", 1, 3, -1, 1, Q("3 mm")),
    Sketcher.Constraint("DistanceY", -1, 1, 1, 3, Q("7 mm")),
    Sketcher.Constraint("DistanceX", 2, 3, -1, 1, Q("7 mm")),
    Sketcher.Constraint("DistanceY", -1, 1, 2, 3, Q("3 mm")),
])
pad3 = body.newObject("PartDesign::Pad", "Pad002")
pad3.Profile = sketch3
pad3.Length = 2.3
pad3.Midplane = True

doc.recompute()
